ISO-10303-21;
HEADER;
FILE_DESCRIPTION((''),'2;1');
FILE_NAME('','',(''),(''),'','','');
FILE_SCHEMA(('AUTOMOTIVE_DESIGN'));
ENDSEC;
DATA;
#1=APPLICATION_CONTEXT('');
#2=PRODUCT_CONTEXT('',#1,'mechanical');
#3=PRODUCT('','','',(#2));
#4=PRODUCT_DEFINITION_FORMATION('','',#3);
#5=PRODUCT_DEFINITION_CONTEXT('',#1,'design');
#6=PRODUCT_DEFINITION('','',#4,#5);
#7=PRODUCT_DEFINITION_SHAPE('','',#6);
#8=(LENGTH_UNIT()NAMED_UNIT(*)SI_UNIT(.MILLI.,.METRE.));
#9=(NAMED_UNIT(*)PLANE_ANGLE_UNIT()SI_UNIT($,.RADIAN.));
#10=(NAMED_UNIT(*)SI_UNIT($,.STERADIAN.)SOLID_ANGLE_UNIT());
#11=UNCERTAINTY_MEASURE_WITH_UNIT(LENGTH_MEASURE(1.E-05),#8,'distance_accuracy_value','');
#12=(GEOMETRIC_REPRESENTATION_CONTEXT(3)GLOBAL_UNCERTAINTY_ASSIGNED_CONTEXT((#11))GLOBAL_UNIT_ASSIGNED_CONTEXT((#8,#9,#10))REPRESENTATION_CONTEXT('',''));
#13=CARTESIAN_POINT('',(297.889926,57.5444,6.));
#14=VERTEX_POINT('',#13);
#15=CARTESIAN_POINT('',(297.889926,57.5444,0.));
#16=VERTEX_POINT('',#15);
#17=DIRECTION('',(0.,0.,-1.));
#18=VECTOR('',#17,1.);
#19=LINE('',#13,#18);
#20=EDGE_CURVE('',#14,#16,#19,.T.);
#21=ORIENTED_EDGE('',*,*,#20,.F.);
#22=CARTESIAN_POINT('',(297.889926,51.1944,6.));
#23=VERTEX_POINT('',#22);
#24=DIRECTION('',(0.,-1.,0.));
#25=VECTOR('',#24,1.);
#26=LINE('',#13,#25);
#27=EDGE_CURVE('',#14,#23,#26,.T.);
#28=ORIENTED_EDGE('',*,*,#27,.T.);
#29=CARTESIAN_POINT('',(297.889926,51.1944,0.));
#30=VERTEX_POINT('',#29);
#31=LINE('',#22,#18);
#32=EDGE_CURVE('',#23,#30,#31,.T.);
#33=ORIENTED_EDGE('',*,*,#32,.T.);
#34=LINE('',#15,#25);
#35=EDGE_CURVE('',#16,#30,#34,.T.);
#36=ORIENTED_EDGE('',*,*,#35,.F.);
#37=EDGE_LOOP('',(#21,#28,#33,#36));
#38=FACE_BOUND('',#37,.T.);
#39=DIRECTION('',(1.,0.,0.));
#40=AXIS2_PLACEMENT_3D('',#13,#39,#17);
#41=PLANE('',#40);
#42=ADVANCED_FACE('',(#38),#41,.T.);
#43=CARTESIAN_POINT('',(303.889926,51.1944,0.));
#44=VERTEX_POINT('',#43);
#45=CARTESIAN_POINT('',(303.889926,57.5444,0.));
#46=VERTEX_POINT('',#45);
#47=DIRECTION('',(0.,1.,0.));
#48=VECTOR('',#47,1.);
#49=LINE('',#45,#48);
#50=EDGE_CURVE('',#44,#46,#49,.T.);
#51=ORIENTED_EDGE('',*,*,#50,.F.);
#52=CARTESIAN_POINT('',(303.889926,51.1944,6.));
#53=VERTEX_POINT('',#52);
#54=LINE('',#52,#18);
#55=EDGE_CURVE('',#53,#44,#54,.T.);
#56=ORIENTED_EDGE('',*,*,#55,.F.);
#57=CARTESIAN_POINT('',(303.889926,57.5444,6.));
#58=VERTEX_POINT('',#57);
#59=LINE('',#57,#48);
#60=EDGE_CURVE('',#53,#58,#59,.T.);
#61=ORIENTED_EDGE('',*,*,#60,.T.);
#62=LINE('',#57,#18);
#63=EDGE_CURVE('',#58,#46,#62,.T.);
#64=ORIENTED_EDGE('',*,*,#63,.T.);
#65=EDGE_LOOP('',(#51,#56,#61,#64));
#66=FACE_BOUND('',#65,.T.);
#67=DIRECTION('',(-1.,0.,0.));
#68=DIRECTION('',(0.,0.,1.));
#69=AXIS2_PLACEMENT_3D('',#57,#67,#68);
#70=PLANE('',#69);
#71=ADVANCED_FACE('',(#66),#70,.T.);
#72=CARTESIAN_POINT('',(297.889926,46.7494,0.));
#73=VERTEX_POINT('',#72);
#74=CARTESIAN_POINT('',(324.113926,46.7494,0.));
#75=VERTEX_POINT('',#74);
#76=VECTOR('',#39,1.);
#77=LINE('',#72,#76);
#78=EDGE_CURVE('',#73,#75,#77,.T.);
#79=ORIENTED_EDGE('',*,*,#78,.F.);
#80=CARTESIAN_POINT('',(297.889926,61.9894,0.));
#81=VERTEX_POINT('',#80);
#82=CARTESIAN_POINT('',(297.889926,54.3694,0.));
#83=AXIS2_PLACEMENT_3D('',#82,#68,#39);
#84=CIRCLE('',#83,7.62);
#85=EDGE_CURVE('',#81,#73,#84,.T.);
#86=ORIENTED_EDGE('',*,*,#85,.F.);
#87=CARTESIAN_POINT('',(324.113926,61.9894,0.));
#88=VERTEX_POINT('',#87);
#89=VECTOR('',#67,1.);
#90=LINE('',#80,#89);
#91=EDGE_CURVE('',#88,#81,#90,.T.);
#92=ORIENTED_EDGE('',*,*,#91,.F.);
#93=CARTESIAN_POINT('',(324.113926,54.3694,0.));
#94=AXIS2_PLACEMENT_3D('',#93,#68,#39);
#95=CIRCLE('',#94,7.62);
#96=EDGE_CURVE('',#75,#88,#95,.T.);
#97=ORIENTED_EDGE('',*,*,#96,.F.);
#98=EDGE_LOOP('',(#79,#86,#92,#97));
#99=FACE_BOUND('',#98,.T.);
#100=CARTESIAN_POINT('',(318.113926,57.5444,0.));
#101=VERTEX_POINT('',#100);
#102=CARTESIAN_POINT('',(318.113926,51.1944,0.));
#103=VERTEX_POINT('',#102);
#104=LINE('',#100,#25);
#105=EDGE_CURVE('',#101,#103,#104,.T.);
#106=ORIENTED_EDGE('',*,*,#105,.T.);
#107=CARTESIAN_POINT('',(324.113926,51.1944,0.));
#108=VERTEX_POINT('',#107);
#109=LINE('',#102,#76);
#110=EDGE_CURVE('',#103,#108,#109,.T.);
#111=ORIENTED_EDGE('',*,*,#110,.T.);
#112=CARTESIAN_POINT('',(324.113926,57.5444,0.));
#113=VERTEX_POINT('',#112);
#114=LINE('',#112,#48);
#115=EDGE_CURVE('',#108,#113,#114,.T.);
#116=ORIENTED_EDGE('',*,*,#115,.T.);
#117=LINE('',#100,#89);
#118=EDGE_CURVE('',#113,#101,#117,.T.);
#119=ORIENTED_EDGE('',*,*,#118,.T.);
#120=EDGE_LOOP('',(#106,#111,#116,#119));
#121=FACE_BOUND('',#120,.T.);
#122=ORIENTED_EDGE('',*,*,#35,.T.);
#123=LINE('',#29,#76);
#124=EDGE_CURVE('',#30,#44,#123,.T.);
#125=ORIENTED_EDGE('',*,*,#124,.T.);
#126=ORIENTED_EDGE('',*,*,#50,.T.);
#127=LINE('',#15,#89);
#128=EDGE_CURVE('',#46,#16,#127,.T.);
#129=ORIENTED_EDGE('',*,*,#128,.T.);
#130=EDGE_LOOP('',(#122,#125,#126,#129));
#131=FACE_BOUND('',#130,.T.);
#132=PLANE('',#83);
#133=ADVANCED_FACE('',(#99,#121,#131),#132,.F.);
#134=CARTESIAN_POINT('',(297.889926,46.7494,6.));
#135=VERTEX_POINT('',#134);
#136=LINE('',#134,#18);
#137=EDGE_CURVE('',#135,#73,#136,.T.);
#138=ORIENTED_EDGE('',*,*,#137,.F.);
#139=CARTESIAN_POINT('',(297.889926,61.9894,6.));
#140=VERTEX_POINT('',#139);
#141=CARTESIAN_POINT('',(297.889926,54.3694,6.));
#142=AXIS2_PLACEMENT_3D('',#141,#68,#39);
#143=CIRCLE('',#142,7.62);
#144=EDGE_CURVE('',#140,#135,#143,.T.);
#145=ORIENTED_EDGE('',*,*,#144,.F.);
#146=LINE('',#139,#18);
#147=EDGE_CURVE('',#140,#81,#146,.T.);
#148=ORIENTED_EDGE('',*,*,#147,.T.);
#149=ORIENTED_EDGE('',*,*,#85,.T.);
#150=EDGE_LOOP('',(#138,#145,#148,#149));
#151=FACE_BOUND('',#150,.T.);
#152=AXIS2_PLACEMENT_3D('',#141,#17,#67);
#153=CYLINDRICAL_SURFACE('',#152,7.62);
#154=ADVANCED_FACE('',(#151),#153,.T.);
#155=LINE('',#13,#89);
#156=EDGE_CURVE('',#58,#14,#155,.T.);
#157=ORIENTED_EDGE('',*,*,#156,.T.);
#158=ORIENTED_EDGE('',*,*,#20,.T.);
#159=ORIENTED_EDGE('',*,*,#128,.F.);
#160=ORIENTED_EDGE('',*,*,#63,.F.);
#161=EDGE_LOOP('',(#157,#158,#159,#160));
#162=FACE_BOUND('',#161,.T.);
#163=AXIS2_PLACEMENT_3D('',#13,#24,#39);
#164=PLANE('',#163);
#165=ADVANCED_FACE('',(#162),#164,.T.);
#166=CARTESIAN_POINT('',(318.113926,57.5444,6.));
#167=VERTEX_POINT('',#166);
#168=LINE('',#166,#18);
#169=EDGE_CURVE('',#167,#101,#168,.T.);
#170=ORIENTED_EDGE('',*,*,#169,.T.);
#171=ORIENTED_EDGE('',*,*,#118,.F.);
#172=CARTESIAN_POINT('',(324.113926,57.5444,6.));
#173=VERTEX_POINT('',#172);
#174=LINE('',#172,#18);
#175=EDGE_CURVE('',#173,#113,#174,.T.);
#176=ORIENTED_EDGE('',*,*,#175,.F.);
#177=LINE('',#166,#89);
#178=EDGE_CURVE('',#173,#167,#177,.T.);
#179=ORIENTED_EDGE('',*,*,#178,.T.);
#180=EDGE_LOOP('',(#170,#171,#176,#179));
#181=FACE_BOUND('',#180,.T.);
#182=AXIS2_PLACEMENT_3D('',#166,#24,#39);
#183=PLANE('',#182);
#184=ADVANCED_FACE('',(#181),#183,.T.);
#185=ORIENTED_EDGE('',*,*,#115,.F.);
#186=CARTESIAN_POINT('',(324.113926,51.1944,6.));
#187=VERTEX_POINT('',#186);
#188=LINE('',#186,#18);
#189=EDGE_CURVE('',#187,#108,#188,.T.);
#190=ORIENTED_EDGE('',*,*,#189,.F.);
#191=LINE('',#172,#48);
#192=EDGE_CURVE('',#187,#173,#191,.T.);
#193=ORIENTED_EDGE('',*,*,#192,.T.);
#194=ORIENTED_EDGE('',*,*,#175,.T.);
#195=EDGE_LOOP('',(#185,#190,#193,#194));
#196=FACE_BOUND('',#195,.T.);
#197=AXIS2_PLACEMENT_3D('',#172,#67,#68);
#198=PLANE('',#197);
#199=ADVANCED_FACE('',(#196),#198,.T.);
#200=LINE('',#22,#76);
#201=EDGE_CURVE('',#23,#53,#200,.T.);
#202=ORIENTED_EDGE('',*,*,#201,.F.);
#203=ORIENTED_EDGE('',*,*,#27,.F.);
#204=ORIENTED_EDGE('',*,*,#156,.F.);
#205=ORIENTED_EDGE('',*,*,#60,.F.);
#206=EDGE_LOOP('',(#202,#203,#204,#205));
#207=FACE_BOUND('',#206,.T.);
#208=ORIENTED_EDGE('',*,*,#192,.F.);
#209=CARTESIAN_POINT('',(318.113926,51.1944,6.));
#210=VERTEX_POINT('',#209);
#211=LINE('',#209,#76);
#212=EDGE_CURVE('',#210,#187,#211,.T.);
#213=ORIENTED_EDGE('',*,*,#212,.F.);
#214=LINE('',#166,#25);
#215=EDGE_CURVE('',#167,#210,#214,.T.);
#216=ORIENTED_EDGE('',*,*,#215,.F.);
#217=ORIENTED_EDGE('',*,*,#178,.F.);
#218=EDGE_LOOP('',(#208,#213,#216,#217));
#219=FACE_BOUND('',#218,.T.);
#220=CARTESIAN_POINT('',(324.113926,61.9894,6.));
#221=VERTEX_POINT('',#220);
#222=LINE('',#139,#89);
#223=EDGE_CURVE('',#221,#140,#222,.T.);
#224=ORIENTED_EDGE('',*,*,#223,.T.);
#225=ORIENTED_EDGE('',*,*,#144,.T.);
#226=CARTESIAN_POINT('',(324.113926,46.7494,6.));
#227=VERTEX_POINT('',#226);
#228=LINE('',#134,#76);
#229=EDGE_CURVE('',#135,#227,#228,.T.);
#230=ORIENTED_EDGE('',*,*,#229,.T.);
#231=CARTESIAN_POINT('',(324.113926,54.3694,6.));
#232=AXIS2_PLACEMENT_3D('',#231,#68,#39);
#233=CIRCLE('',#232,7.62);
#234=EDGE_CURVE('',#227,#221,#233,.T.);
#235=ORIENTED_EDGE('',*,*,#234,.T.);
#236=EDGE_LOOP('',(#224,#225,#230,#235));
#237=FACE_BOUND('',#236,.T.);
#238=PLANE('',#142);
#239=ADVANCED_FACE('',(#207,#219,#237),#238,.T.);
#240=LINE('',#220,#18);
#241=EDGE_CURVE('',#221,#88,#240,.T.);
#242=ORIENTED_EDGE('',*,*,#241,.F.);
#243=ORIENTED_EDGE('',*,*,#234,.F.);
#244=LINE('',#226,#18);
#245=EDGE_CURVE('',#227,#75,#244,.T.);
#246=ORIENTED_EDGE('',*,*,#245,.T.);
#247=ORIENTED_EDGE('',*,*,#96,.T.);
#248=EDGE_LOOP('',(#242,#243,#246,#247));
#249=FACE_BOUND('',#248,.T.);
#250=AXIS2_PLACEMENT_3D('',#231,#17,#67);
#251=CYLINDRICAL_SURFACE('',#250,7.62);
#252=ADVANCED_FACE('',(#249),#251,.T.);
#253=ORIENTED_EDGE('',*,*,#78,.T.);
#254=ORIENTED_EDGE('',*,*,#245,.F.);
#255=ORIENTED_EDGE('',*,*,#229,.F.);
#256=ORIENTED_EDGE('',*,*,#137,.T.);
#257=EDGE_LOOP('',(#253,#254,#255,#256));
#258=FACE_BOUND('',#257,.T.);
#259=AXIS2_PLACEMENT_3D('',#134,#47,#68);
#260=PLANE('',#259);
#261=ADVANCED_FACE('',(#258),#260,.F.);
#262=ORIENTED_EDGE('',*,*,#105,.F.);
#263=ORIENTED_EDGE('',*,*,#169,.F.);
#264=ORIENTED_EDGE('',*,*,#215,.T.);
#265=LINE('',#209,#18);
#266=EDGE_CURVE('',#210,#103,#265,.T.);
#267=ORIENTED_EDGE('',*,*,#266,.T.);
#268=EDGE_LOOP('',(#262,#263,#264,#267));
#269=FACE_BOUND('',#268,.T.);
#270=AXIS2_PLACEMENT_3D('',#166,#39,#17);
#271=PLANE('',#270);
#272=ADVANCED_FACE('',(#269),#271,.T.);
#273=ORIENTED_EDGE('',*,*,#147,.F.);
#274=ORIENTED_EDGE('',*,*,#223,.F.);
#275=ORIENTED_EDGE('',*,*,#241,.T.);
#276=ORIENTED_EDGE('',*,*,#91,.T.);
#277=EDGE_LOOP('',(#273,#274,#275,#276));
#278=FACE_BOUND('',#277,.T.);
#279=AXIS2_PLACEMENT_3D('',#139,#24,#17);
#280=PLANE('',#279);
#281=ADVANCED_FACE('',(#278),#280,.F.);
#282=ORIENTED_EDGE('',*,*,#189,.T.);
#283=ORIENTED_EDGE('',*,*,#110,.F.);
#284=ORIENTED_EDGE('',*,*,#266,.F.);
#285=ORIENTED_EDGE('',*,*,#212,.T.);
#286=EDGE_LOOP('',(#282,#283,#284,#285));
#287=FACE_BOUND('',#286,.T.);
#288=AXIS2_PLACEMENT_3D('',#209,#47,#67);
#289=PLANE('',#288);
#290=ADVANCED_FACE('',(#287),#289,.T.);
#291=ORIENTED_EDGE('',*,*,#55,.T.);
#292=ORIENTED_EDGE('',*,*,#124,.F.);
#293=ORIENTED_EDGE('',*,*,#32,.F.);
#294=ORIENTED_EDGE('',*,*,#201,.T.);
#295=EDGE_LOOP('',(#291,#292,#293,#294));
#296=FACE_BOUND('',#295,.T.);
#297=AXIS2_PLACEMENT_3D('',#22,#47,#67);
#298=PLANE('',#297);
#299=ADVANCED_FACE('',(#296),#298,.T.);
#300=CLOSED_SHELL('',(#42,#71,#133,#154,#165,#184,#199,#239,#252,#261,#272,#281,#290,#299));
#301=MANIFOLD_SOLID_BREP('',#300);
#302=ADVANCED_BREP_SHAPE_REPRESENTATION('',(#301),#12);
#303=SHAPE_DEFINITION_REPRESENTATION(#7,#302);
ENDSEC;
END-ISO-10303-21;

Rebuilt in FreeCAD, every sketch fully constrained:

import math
import FreeCAD as App
import Part
import Sketcher
Q = App.Units.Quantity

doc = App.newDocument("Part")
body = doc.addObject("PartDesign::Body", "Body")

sketch1 = body.newObject("Sketcher::SketchObject", "Sketch")
sketch1.AttachmentSupport = (doc.getObject("XY_Plane"), [""])
sketch1.MapMode = "FlatFace"
sketch1.addGeometry([
    Part.LineSegment(App.Vector(324, 62, 0), App.Vector(298, 62, 0)),
    Part.ArcOfCircle(Part.Circle(App.Vector(298, 54, 0), App.Vector(0, 0, 1), 8), math.radians(90), math.radians(270)),
    Part.LineSegment(App.Vector(298, 47, 0), App.Vector(324, 47, 0)),
    Part.ArcOfCircle(Part.Circle(App.Vector(324, 54, 0), App.Vector(0, 0, 1), 8), math.radians(-90), math.radians(90)),
    Part.LineSegment(App.Vector(318, 51, 0), App.Vector(318, 58, 0)),
    Part.LineSegment(App.Vector(318, 58, 0), App.Vector(324, 58, 0)),
    Part.LineSegment(App.Vector(324, 58, 0), App.Vector(324, 51, 0)),
    Part.LineSegment(App.Vector(324, 51, 0), App.Vector(318, 51, 0)),
    Part.LineSegment(App.Vector(298, 51, 0), App.Vector(298, 58, 0)),
    Part.LineSegment(App.Vector(298, 58, 0), App.Vector(304, 58, 0)),
    Part.LineSegment(App.Vector(304, 58, 0), App.Vector(304, 51, 0)),
    Part.LineSegment(App.Vector(304, 51, 0), App.Vector(298, 51, 0)),
], False)
sketch1.addConstraint([
    Sketcher.Constraint("Tangent", 0, 2, 1, 1),
    Sketcher.Constraint("Tangent", 1, 2, 2, 1),
    Sketcher.Constraint("Tangent", 2, 2, 3, 1),
    Sketcher.Constraint("Tangent", 3, 2, 0, 1),
    Sketcher.Constraint("Coincident", 4, 2, 5, 1),
    Sketcher.Constraint("Coincident", 5, 2, 6, 1),
    Sketcher.Constraint("Coincident", 6, 2, 7, 1),
    Sketcher.Constraint("Coincident", 7, 2, 4, 1),
    Sketcher.Constraint("Coincident", 8, 2, 9, 1),
    Sketcher.Constraint("Coincident", 9, 2, 10, 1),
    Sketcher.Constraint("Coincident", 10, 2, 11, 1),
    Sketcher.Constraint("Coincident", 11, 2, 8, 1),
    Sketcher.Constraint("Horizontal", 0),
    Sketcher.Constraint("Horizontal", 2),
    Sketcher.Constraint("Vertical", 4),
    Sketcher.Constraint("Horizontal", 5),
    Sketcher.Constraint("Vertical", 6),
    Sketcher.Constraint("Horizontal", 7),
    Sketcher.Constraint("Vertical", 8),
    Sketcher.Constraint("Horizontal", 9),
    Sketcher.Constraint("Vertical", 10),
    Sketcher.Constraint("Horizontal", 11),
    Sketcher.Constraint("Horizontal", 5, 2, 8, 2),
    Sketcher.Constraint("Horizontal", 7, 2, 10, 2),
    Sketcher.Constraint("Vertical", 3, 2, 5, 2),
    Sketcher.Constraint("Vertical", 1, 2, 8, 2),
    Sketcher.Constraint("Equal", 7, 9),
    Sketcher.Constraint("Radius", 1, Q("0.3 in")),
    Sketcher.Constraint("DistanceY", 4, 1, 4, 2, Q("0.25 in")),
    Sketcher.Constraint("DistanceX", 9, 2, 4, 2, Q("0.56 in")),
    Sketcher.Constraint("DistanceY", 3, 3, 4, 2, Q("0.125 in")),
    Sketcher.Constraint("DistanceX", 0, 2, 0, 1, 26.224),
    Sketcher.Constraint("DistanceY", -1, 1, 1, 3, 54.3694),
    Sketcher.Constraint("DistanceX", -1, 1, 1, 3, 297.889926),
])
pad1 = body.newObject("PartDesign::Pad", "Pad")
pad1.Profile = sketch1
pad1.Length = 6

doc.recompute()
